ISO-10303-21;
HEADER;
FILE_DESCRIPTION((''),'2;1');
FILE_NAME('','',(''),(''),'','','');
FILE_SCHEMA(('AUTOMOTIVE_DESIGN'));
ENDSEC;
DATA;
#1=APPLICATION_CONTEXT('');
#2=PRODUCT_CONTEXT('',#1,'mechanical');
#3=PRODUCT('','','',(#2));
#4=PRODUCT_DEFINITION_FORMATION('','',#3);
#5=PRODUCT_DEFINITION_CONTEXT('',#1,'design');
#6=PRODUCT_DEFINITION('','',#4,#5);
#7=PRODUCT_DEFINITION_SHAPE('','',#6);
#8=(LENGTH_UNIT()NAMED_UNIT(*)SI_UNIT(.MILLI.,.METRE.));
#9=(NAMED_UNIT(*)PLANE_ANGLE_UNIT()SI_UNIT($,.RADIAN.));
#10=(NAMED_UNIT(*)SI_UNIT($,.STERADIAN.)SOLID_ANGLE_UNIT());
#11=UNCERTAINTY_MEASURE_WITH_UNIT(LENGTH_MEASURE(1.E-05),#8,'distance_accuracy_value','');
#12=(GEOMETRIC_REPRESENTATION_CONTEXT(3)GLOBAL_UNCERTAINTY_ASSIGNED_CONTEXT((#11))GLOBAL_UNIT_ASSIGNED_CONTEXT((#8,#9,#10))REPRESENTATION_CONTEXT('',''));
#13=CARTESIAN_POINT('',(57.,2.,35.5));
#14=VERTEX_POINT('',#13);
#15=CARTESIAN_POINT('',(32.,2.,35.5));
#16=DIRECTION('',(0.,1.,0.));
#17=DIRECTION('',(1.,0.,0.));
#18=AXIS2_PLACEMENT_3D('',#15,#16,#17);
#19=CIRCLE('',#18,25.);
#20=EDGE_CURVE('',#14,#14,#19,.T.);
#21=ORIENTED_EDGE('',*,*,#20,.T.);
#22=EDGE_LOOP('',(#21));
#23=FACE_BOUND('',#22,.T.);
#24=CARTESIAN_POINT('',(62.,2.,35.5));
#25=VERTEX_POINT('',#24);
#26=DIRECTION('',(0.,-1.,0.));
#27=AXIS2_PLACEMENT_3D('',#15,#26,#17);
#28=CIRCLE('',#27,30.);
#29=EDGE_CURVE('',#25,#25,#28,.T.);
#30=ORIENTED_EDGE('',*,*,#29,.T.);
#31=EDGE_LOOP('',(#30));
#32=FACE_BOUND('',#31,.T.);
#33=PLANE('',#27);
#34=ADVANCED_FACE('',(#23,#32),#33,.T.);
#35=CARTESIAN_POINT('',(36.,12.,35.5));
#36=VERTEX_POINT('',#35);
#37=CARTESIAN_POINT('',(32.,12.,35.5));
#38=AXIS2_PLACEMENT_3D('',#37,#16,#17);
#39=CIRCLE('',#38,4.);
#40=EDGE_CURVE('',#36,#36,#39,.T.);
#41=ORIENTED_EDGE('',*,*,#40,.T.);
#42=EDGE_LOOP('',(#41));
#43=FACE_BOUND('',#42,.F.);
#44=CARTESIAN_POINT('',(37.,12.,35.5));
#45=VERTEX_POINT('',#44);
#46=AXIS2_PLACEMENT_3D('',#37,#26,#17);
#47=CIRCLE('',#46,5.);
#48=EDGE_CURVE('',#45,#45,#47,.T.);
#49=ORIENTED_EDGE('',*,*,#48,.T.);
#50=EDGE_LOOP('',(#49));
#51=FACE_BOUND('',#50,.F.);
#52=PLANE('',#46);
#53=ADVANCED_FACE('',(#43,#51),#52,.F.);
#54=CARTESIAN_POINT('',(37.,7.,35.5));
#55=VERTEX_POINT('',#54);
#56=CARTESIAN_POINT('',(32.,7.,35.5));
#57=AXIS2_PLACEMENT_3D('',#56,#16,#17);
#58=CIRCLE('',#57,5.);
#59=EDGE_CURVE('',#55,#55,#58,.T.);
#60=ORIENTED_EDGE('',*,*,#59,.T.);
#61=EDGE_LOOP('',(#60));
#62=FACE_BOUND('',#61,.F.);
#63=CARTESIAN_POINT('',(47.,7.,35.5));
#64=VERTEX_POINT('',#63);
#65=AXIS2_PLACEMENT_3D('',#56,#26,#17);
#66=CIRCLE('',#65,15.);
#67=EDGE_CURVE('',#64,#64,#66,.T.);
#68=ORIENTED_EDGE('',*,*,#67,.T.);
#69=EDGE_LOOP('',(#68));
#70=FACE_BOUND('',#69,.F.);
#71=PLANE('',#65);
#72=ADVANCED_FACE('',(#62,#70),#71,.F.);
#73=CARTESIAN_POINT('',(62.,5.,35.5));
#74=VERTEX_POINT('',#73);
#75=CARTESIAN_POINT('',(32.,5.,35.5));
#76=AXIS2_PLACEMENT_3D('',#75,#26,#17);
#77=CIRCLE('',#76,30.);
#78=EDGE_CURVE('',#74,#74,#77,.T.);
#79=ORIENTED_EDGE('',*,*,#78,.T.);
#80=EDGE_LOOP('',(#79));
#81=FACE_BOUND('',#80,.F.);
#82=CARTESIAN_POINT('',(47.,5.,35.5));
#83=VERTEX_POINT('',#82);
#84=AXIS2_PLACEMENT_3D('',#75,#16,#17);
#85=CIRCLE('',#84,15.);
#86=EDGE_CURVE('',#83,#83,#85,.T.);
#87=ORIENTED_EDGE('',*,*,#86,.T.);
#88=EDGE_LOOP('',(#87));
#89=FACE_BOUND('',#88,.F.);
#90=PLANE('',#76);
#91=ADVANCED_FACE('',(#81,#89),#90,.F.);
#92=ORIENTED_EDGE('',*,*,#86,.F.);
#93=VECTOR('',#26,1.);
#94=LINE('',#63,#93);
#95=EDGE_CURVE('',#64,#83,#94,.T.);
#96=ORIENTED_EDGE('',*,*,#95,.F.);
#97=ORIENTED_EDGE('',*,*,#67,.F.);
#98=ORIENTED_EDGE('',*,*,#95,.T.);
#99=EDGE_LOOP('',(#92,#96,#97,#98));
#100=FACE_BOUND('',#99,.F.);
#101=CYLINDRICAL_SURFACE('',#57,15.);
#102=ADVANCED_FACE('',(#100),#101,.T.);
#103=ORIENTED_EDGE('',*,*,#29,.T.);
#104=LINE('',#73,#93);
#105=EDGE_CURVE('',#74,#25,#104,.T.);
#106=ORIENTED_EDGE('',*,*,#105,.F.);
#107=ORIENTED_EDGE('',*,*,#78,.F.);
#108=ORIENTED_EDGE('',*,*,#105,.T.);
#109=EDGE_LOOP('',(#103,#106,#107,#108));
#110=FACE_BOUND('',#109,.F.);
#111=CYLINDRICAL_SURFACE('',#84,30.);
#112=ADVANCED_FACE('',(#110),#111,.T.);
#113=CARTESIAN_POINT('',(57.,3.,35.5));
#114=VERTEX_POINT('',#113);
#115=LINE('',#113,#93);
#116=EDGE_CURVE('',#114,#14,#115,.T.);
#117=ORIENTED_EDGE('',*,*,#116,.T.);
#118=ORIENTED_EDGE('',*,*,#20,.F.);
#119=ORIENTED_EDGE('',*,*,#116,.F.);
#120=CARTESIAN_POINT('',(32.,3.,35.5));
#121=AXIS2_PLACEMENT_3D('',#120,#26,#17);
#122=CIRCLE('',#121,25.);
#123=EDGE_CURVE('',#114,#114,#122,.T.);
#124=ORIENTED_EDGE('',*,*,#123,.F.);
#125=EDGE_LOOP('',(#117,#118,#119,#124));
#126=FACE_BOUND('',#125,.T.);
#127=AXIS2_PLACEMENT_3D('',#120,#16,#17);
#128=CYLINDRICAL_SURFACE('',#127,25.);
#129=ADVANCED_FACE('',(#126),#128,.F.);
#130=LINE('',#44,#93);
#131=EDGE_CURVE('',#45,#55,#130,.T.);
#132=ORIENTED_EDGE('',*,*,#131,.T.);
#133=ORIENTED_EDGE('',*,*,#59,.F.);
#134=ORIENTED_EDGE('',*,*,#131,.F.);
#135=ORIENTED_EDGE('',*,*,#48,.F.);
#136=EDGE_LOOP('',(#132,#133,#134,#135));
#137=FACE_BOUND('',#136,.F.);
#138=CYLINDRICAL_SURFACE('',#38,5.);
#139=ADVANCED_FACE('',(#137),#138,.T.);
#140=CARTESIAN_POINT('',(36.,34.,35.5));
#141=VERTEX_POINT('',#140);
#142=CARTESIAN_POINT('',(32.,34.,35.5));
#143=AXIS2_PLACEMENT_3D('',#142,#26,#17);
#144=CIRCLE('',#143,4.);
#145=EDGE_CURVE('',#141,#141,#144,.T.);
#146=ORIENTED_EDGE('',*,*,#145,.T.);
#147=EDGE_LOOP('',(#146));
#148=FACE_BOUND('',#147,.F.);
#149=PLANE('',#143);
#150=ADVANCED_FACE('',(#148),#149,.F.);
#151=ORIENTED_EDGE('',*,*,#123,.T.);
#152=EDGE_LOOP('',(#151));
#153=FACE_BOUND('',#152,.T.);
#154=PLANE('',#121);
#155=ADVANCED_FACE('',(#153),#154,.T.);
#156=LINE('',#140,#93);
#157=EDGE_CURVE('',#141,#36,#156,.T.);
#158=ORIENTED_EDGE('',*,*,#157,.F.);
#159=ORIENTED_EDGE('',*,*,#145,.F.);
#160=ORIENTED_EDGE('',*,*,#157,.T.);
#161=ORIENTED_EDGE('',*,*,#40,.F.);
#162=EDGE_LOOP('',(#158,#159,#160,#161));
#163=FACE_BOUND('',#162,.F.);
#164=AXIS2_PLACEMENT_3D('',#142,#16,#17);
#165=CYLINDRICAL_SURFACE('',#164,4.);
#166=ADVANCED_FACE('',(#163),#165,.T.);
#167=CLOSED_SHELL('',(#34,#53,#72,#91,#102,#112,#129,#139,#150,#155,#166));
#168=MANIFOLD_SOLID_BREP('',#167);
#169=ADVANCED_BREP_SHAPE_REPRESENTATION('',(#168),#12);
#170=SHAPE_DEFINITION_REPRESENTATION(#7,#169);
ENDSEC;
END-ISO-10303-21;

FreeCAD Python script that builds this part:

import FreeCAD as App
import Part
import Sketcher

V = App.Vector
Q = App.Units.Quantity

doc = App.newDocument("Part")
body = doc.addObject("PartDesign::Body", "Body")

# Sketch on XY plane
sketch1 = body.newObject("Sketcher::SketchObject", "Sketch")
sketch1.AttachmentSupport = (doc.getObject("XY_Plane"), [""])
sketch1.MapMode = "FlatFace"
sketch1.addGeometry(Part.Circle(V(0, 0, 0), V(0, 0, 1), 25), False)
sketch1.addConstraint(Sketcher.Constraint("Coincident", 0, 3, -1, 1))
sketch1.addConstraint(Sketcher.Constraint("Diameter", 0, Q("50 mm")))
pad1 = body.newObject("PartDesign::Pad", "Pad")
pad1.Profile = sketch1
pad1.Length = 3
body2 = doc.addObject("PartDesign::Body", "Body001")
doc.recompute()

body.Placement = App.Placement(V(0, 0, 0), App.Rotation(V(1, 0, 0), 90))
boolean = body2.newObject("PartDesign::Boolean", "Boolean")
boolean.Type = "Fuse"
boolean.addObjects([body])
body3 = doc.addObject("PartDesign::Body", "Body002")
doc.recompute()

body2.Placement = App.Placement(V(32, 3, 35.5), App.Rotation(V(0, 0, 1), 0))
boolean2 = body3.newObject("PartDesign::Boolean", "Boolean001")
boolean2.Type = "Fuse"
boolean2.addObjects([body2])
body4 = doc.addObject("PartDesign::Body", "Body003")

# Sketch on XY plane
sketch2 = body4.newObject("Sketcher::SketchObject", "Sketch001")
sketch2.AttachmentSupport = (doc.getObject("XY_Plane003"), [""])
sketch2.MapMode = "FlatFace"
sketch2.addGeometry(Part.Circle(V(0, 0, 0), V(0, 0, 1), 5), False)
sketch2.addConstraint(Sketcher.Constraint("Coincident", 0, 3, -1, 1))
sketch2.addConstraint(Sketcher.Constraint("Diameter", 0, Q("10 mm")))
pad2 = body4.newObject("PartDesign::Pad", "Pad001")
pad2.Profile = sketch2
pad2.Length = 11
body5 = doc.addObject("PartDesign::Body", "Body004")
doc.recompute()

body4.Placement = App.Placement(V(0, 0, 0), App.Rotation(V(1, 0, 0), 90))
boolean3 = body5.newObject("PartDesign::Boolean", "Boolean002")
boolean3.Type = "Fuse"
boolean3.addObjects([body4])
body6 = doc.addObject("PartDesign::Body", "Body005")
doc.recompute()

body5.Placement = App.Placement(V(32, 12, 35.5), App.Rotation(V(0, 0, 1), 0))
boolean4 = body6.newObject("PartDesign::Boolean", "Boolean003")
boolean4.Type = "Fuse"
boolean4.addObjects([body5])
body7 = doc.addObject("PartDesign::Body", "Body006")

# Sketch on XY plane
sketch3 = body7.newObject("Sketcher::SketchObject", "Sketch002")
sketch3.AttachmentSupport = (doc.getObject("XY_Plane006"), [""])
sketch3.MapMode = "FlatFace"
sketch3.addGeometry(Part.Circle(V(0, 0, 0), V(0, 0, 1), 30), False)
sketch3.addConstraint(Sketcher.Constraint("Coincident", 0, 3, -1, 1))
sketch3.addConstraint(Sketcher.Constraint("Diameter", 0, Q("60 mm")))
pad3 = body7.newObject("PartDesign::Pad", "Pad002")
pad3.Profile = sketch3
pad3.Length = 3
body8 = doc.addObject("PartDesign::Body", "Body007")
doc.recompute()

body7.Placement = App.Placement(V(0, 0, 0), App.Rotation(V(1, 0, 0), 90))
boolean5 = body8.newObject("PartDesign::Boolean", "Boolean004")
boolean5.Type = "Fuse"
boolean5.addObjects([body7])
body9 = doc.addObject("PartDesign::Body", "Body008")
doc.recompute()

body8.Placement = App.Placement(V(32, 5, 35.5), App.Rotation(V(0, 0, 1), 0))
boolean6 = body9.newObject("PartDesign::Boolean", "Boolean005")
boolean6.Type = "Fuse"
boolean6.addObjects([body8])
body10 = doc.addObject("PartDesign::Body", "Body009")

# Sketch on XY plane
sketch4 = body10.newObject("Sketcher::SketchObject", "Sketch003")
sketch4.AttachmentSupport = (doc.getObject("XY_Plane009"), [""])
sketch4.MapMode = "FlatFace"
sketch4.addGeometry(Part.Circle(V(0, 0, 0), V(0, 0, 1), 15), False)
sketch4.addConstraint(Sketcher.Constraint("Coincident", 0, 3, -1, 1))
sketch4.addConstraint(Sketcher.Constraint("Diameter", 0, Q("30 mm")))
pad4 = body10.newObject("PartDesign::Pad", "Pad003")
pad4.Profile = sketch4
pad4.Length = 4
body11 = doc.addObject("PartDesign::Body", "Body010")
doc.recompute()

body10.Placement = App.Placement(V(0, 0, 0), App.Rotation(V(1, 0, 0), 90))
boolean7 = body11.newObject("PartDesign::Boolean", "Boolean006")
boolean7.Type = "Fuse"
boolean7.addObjects([body10])
body12 = doc.addObject("PartDesign::Body", "Body011")
doc.recompute()

body11.Placement = App.Placement(V(32, 7, 35.5), App.Rotation(V(0, 0, 1), 0))
boolean8 = body12.newObject("PartDesign::Boolean", "Boolean007")
boolean8.Type = "Fuse"
boolean8.addObjects([body11])
body13 = doc.addObject("PartDesign::Body", "Body012")

# Sketch on XY plane
sketch5 = body13.newObject("Sketcher::SketchObject", "Sketch004")
sketch5.AttachmentSupport = (doc.getObject("XY_Plane012"), [""])
sketch5.MapMode = "FlatFace"
sketch5.addGeometry(Part.Circle(V(0, 0, 0), V(0, 0, 1), 4), False)
sketch5.addConstraint(Sketcher.Constraint("Coincident", 0, 3, -1, 1))
sketch5.addConstraint(Sketcher.Constraint("Diameter", 0, Q("8 mm")))
pad5 = body13.newObject("PartDesign::Pad", "Pad004")
pad5.Profile = sketch5
pad5.Length = 32
body14 = doc.addObject("PartDesign::Body", "Body013")
doc.recompute()

body13.Placement = App.Placement(V(0, 0, 0), App.Rotation(V(1, 0, 0), 90))
boolean9 = body14.newObject("PartDesign::Boolean", "Boolean008")
boolean9.Type = "Fuse"
boolean9.addObjects([body13])
body15 = doc.addObject("PartDesign::Body", "Body014")
doc.recompute()

body14.Placement = App.Placement(V(32, 34, 35.5), App.Rotation(V(0, 0, 1), 0))
boolean10 = body15.newObject("PartDesign::Boolean", "Boolean009")
boolean10.Type = "Fuse"
boolean10.addObjects([body14])
doc.recompute()

boolean11 = body15.newObject("PartDesign::Boolean", "Boolean010")
boolean11.Type = "Fuse"
boolean11.addObjects([body6])
doc.recompute()

boolean12 = body15.newObject("PartDesign::Boolean", "Boolean011")
boolean12.Type = "Fuse"
boolean12.addObjects([body9])
doc.recompute()

boolean13 = body15.newObject("PartDesign::Boolean", "Boolean012")
boolean13.Type = "Fuse"
boolean13.addObjects([body12])
doc.recompute()

boolean14 = body15.newObject("PartDesign::Boolean", "Boolean013")
boolean14.Type = "Cut"
boolean14.addObjects([body3])

doc.recompute()
